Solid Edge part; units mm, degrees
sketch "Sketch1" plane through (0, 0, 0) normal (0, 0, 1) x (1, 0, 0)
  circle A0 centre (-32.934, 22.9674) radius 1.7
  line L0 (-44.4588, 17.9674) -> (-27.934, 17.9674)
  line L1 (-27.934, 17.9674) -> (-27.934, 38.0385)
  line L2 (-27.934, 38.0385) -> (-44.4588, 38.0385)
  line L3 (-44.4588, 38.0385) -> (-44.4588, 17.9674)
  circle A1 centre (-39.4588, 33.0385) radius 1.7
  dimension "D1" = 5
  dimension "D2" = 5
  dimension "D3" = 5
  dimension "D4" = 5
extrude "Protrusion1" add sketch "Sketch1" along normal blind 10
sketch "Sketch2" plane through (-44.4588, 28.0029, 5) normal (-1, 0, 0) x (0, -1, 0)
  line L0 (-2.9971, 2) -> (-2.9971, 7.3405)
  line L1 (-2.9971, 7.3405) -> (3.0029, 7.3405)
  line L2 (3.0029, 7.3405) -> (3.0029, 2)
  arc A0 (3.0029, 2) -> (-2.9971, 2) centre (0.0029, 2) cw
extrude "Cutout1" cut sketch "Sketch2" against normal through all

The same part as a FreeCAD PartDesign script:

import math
import FreeCAD as App
import Part
import Sketcher

V = App.Vector
Q = App.Units.Quantity


def add_polygon(sketch, points):
    """Adds a closed chain of lines whose ends are joined by coincident constraints."""
    first, n = sketch.GeometryCount, len(points)
    for a, b in zip(points, points[1:] + points[:1]):
        sketch.addGeometry(Part.LineSegment(App.Vector(*a, 0), App.Vector(*b, 0)), False)
    for i in range(n):
        sketch.addConstraint(Sketcher.Constraint("Coincident", first + i, 2, first + (i + 1) % n, 1))

doc = App.newDocument("Part")
body = doc.addObject("PartDesign::Body", "Body")

sketch1 = body.newObject("Sketcher::SketchObject", "Sketch")
sketch1.AttachmentSupport = (doc.getObject("XY_Plane"), [""])
sketch1.MapMode = "FlatFace"
add_polygon(sketch1, [(-44.5, 38), (-44.5, 18), (-27.9, 18), (-27.9, 38)])
sketch1.addGeometry(Part.Circle(V(-32.9, 23, 0), V(0, 0, 1), 1.7), False)
sketch1.addGeometry(Part.Circle(V(-39.5, 33, 0), V(0, 0, 1), 1.7), False)
sketch1.addConstraint([
    Sketcher.Constraint("Vertical", 0),
    Sketcher.Constraint("Horizontal", 1),
    Sketcher.Constraint("Vertical", 2),
    Sketcher.Constraint("Horizontal", 3),
    Sketcher.Constraint("Equal", 4, 5),
    Sketcher.Constraint("Diameter", 4, Q("3.4 mm")),
    Sketcher.Constraint("DistanceX", 4, 3, -1, 1, Q("32.934 mm")),
    Sketcher.Constraint("DistanceY", 0, 2, 4, 3, Q("5 mm")),
    Sketcher.Constraint("DistanceX", 0, 2, 5, 3, Q("5 mm")),
    Sketcher.Constraint("DistanceX", 4, 3, 1, 2, Q("5 mm")),
    Sketcher.Constraint("DistanceY", 5, 3, 2, 2, Q("5 mm")),
    Sketcher.Constraint("DistanceX", 5, 3, -1, 1, Q("39.4588 mm")),
    Sketcher.Constraint("DistanceY", 0, 2, 0, 1, Q("20.071 mm")),
    Sketcher.Constraint("DistanceY", -1, 1, 4, 3, Q("22.9674 mm")),
])
pad1 = body.newObject("PartDesign::Pad", "Pad")
pad1.Profile = sketch1
pad1.Length = 10

sketch2 = body.newObject("Sketcher::SketchObject", "Sketch001")
sketch2.AttachmentSupport = (doc.getObject("YZ_Plane"), [""])
sketch2.MapMode = "FlatFace"
sketch2.AttachmentOffset = App.Placement(V(0, 0, -44.4588), App.Rotation())
sketch2.addGeometry([
    Part.LineSegment(V(31, 12.3, 0), V(31, 7, 0)),
    Part.ArcOfCircle(Part.Circle(V(28, 7, 0), V(0, 0, 1), 3), math.radians(180), math.radians(360)),
    Part.LineSegment(V(25, 7, 0), V(25, 12.3, 0)),
    Part.LineSegment(V(25, 12.3, 0), V(31, 12.3, 0)),
], False)
sketch2.addConstraint([
    Sketcher.Constraint("Tangent", 0, 2, 1, 2),
    Sketcher.Constraint("Tangent", 1, 1, 2, 1),
    Sketcher.Constraint("Coincident", 2, 2, 3, 1),
    Sketcher.Constraint("Coincident", 3, 2, 0, 1),
    Sketcher.Constraint("Vertical", 0),
    Sketcher.Constraint("Vertical", 2),
    Sketcher.Constraint("Horizontal", 3),
    Sketcher.Constraint("Radius", 1, Q("3 mm")),
    Sketcher.Constraint("DistanceX", -1, 1, 1, 3, Q("28 mm")),
    Sketcher.Constraint("DistanceY", -1, 1, 1, 3, Q("7 mm")),
    Sketcher.Constraint("DistanceY", 0, 2, 0, 1, Q("5.3405 mm")),
])
pocket1 = body.newObject("PartDesign::Pocket", "Pocket")
pocket1.Profile = sketch2
pocket1.Type = "ThroughAll"
pocket1.Reversed = True

doc.recompute()
